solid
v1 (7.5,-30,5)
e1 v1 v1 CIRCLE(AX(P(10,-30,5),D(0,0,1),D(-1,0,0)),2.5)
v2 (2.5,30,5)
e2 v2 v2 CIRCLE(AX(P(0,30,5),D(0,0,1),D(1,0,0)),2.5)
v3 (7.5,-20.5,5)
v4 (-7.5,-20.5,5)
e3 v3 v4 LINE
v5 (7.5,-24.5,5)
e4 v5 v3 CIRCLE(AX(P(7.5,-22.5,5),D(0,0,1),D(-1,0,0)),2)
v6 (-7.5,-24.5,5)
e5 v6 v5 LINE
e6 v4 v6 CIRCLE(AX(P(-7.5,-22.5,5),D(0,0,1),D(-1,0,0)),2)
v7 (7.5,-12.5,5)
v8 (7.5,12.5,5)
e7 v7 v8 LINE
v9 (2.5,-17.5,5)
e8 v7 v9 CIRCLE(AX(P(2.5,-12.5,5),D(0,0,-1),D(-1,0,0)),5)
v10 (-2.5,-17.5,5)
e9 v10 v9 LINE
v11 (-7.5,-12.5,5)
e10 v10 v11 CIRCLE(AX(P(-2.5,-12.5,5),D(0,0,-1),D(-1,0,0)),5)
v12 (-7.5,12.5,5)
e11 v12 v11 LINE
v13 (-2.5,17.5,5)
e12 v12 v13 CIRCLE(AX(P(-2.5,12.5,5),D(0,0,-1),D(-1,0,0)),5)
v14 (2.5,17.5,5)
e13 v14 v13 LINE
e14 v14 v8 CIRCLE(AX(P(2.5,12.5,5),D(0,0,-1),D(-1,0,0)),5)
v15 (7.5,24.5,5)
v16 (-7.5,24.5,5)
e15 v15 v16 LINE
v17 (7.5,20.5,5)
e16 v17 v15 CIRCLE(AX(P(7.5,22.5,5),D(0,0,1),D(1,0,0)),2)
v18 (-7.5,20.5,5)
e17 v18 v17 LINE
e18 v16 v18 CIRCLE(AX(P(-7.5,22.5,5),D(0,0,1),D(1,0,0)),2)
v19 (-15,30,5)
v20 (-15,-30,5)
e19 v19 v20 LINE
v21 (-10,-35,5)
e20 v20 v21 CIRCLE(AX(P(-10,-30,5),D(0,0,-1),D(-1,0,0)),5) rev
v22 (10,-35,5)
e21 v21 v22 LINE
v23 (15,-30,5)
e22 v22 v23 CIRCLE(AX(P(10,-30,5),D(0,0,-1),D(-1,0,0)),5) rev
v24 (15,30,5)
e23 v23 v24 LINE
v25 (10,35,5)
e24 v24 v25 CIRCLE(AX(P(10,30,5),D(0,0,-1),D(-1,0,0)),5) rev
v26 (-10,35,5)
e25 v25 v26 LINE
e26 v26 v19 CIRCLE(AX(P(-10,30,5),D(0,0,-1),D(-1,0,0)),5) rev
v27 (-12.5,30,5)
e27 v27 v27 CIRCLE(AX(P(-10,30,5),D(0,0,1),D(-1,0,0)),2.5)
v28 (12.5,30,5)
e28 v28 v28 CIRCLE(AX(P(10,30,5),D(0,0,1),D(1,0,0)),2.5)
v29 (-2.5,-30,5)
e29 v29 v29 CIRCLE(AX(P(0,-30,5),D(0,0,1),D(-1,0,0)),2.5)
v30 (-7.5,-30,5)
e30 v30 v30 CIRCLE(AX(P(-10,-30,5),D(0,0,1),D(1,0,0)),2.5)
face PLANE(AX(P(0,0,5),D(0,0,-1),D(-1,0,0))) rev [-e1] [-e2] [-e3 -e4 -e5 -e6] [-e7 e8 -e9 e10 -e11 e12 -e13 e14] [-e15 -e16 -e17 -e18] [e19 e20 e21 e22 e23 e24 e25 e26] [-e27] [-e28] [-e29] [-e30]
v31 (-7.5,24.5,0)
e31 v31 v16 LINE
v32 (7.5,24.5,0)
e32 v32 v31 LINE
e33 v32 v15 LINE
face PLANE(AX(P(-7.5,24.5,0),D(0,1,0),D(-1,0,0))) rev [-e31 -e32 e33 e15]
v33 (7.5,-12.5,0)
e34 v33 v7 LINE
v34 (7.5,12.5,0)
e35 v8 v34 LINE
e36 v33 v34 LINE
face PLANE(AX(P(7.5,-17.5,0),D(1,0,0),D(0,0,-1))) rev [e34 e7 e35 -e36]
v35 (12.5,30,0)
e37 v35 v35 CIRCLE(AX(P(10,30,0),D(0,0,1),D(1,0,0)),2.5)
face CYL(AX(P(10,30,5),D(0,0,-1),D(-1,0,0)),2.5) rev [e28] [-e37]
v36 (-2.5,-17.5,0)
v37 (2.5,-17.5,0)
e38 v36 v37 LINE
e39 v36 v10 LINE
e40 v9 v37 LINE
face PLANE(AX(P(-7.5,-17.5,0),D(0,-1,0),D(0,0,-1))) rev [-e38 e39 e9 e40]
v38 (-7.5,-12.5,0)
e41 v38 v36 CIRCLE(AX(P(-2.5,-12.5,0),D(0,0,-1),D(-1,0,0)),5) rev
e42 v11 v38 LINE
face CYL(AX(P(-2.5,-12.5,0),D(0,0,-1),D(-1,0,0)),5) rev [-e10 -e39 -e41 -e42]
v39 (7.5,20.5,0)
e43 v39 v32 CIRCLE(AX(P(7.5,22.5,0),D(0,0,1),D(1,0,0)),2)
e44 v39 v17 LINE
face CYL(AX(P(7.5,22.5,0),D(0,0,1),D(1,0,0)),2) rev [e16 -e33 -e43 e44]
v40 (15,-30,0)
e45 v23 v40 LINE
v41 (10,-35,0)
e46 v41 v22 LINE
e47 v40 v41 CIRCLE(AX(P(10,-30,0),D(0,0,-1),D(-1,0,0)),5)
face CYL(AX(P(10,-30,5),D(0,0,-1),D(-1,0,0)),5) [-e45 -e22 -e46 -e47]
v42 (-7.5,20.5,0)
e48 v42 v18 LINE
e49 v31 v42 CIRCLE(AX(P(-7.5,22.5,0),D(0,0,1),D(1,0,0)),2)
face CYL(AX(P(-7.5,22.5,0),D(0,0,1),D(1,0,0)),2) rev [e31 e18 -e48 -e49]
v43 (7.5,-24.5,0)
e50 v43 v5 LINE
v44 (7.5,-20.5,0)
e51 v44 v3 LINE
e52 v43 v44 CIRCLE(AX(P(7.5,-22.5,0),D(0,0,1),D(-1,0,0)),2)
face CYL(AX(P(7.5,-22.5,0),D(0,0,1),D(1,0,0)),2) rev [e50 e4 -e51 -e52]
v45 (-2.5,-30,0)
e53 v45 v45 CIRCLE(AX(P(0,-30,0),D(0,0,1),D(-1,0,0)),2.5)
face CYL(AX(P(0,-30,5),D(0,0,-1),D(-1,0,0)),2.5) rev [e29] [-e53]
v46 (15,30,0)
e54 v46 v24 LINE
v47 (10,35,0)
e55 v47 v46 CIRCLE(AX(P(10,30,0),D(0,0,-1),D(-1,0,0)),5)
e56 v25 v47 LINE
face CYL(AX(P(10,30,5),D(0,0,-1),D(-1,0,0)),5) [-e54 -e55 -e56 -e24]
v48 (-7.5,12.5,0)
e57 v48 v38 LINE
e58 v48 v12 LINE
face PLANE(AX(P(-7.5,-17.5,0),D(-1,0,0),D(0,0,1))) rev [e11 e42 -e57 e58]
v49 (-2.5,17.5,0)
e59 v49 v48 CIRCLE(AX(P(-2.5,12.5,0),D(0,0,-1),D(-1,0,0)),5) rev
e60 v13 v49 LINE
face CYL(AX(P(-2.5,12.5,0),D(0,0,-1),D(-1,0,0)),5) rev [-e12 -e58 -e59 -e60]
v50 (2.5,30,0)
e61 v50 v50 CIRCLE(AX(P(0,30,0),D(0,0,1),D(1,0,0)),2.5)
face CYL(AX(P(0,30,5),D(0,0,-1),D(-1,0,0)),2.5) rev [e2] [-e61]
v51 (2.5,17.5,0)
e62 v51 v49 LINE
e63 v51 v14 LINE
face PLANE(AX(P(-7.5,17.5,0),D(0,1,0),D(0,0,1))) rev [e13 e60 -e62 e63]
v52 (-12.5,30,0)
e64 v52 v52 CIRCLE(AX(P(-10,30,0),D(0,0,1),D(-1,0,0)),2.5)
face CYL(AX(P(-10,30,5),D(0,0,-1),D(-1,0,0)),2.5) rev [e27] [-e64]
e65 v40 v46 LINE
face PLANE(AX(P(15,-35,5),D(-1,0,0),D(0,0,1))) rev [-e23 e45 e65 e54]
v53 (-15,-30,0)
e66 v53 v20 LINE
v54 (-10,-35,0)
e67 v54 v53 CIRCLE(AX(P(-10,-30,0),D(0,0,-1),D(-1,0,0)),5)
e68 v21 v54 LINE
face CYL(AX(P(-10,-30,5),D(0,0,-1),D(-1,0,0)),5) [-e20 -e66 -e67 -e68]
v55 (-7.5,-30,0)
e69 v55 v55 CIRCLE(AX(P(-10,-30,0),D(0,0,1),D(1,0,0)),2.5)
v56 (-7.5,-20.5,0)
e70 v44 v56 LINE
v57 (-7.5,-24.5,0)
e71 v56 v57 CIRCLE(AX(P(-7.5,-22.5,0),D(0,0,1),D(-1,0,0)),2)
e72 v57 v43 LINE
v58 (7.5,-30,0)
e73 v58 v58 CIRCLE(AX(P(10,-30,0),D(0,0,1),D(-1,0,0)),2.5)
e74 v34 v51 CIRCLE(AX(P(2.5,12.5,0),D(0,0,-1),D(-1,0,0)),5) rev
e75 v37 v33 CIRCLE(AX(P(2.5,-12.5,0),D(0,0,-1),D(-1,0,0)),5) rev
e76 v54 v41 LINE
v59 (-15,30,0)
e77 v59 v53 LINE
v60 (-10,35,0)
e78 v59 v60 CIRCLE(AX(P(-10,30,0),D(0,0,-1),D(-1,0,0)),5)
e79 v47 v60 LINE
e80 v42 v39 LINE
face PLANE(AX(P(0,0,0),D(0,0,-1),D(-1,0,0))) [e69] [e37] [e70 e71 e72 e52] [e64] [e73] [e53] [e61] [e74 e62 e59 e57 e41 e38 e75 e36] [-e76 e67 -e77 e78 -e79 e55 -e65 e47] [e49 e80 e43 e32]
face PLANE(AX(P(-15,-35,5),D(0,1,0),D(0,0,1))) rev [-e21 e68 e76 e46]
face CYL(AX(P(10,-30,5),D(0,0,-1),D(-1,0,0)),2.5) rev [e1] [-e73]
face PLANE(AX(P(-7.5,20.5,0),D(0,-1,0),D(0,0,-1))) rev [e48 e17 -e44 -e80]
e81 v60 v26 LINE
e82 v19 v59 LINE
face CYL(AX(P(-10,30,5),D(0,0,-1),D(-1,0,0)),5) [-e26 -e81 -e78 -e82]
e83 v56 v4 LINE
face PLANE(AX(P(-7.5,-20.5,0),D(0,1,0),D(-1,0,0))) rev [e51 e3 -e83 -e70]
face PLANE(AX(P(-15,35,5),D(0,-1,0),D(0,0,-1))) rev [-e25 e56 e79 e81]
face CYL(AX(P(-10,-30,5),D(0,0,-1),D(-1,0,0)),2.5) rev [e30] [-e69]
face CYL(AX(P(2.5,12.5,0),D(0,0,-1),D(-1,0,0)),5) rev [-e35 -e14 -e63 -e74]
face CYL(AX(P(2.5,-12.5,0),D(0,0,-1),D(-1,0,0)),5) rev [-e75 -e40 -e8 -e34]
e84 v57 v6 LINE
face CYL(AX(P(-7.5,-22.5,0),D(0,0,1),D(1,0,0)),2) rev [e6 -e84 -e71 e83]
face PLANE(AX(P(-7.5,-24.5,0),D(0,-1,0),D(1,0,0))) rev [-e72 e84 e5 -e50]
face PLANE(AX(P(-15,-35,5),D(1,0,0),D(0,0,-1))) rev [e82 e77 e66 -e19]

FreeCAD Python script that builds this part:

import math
import FreeCAD as App
import Part
import Sketcher

V = App.Vector
Q = App.Units.Quantity


def edges_at(feature, points):
    """Names of the edges that pass closest to the given points."""
    edges = feature.Shape.Edges
    near = lambda p: min(range(len(edges)), key=lambda i: edges[i].distToShape(Part.Vertex(*p))[0])
    return sorted({f"Edge{near(p) + 1}" for p in points})


def add_polygon(sketch, points):
    """Adds a closed chain of lines whose ends are joined by coincident constraints."""
    first, n = sketch.GeometryCount, len(points)
    for a, b in zip(points, points[1:] + points[:1]):
        sketch.addGeometry(Part.LineSegment(App.Vector(*a, 0), App.Vector(*b, 0)), False)
    for i in range(n):
        sketch.addConstraint(Sketcher.Constraint("Coincident", first + i, 2, first + (i + 1) % n, 1))

doc = App.newDocument("Part")
body = doc.addObject("PartDesign::Body", "Body")

# Sketch on XY plane
sketch1 = doc.addObject("Sketcher::SketchObject", "Sketch")
body.addObject(sketch1)
sketch1.AttachmentSupport = (doc.XY_Plane, [""])
sketch1.MapMode = "FlatFace"
add_polygon(sketch1, [(-15, 35), (-15, -35), (15, -35), (15, 35)])  # lines 0-3
sketch1.addGeometry(Part.Circle(V(-10, -30, 0), V(0, 0, 1), 2.5), False)  # 4
sketch1.addGeometry(Part.Circle(V(0, -30, 0), V(0, 0, 1), 2.5), False)  # 5
sketch1.addGeometry(Part.Circle(V(10, -30, 0), V(0, 0, 1), 2.5), False)  # 6
sketch1.addGeometry(Part.Circle(V(-10, 30, 0), V(0, 0, 1), 2.5), False)  # 7
sketch1.addGeometry(Part.Circle(V(0, 30, 0), V(0, 0, 1), 2.5), False)  # 8
sketch1.addGeometry(Part.Circle(V(10, 30, 0), V(0, 0, 1), 2.5), False)  # 9
sketch1.addConstraint([
    Sketcher.Constraint("Vertical", 0),
    Sketcher.Constraint("Horizontal", 1),
    Sketcher.Constraint("Vertical", 2),
    Sketcher.Constraint("Horizontal", 3),
    Sketcher.Constraint("Equal", 4, 5),
    Sketcher.Constraint("Equal", 5, 6),
    Sketcher.Constraint("Equal", 6, 7),
    Sketcher.Constraint("Equal", 7, 8),
    Sketcher.Constraint("Equal", 8, 9),
    Sketcher.Constraint("Symmetric", 6, 3, 7, 3, -1, 1),
    Sketcher.Constraint("Symmetric", 5, 3, 8, 3, -1, 1),
    Sketcher.Constraint("Symmetric", 4, 3, 9, 3, -1, 1),
    Sketcher.Constraint("Symmetric", 0, 2, 2, 2, -1, 1),
    Sketcher.Constraint("Symmetric", 4, 3, 6, 3, -2),
    Sketcher.Constraint("PointOnObject", 5, 3, -2),
    Sketcher.Constraint("Horizontal", 4, 3, 5, 3),
    Sketcher.Constraint("Diameter", 4, Q("5 mm")),
    Sketcher.Constraint("DistanceX", 1, 1, 1, 2, Q("30 mm")),
    Sketcher.Constraint("DistanceY", 0, 2, 0, 1, Q("70 mm")),
    Sketcher.Constraint("DistanceX", 4, 3, -1, 1, Q("10 mm")),
    Sketcher.Constraint("DistanceY", 4, 3, -1, 1, Q("30 mm")),
])
pad1 = doc.addObject("PartDesign::Pad", "Pad")
body.addObject(pad1)
pad1.Profile = sketch1
pad1.Length = 5
doc.recompute()

fillet = doc.addObject("PartDesign::Fillet", "Fillet")
body.addObject(fillet)
fillet.Base = (pad1, edges_at(pad1, [
    (15, -35, 2.5),
    (-15, -35, 2.5),
    (-15, 35, 2.5),
    (15, 35, 2.5),
]))
fillet.Radius = 5

# Sketch on XY plane
sketch2 = doc.addObject("Sketcher::SketchObject", "Sketch001")
body.addObject(sketch2)
sketch2.AttachmentSupport = (doc.XY_Plane, [""])
sketch2.MapMode = "FlatFace"
sketch2.AttachmentOffset = App.Placement(V(0, 0, 5), App.Rotation())
add_polygon(sketch2, [(-8, 18), (-8, -18), (8, -18), (8, 18)])  # lines 0-3
sketch2.addConstraint([
    Sketcher.Constraint("Vertical", 0),
    Sketcher.Constraint("Horizontal", 1),
    Sketcher.Constraint("Vertical", 2),
    Sketcher.Constraint("Horizontal", 3),
    Sketcher.Constraint("Symmetric", 0, 2, 2, 2, -1, 1),
    Sketcher.Constraint("DistanceX", 1, 1, 1, 2, Q("15 mm")),
    Sketcher.Constraint("DistanceY", 0, 2, 0, 1, Q("35 mm")),
])
pocket1 = doc.addObject("PartDesign::Pocket", "Pocket")
body.addObject(pocket1)
pocket1.Profile = sketch2
pocket1.Type = "ThroughAll"

# Sketch on XY plane
sketch3 = doc.addObject("Sketcher::SketchObject", "Sketch002")
body.addObject(sketch3)
sketch3.AttachmentSupport = (doc.XY_Plane, [""])
sketch3.MapMode = "FlatFace"
sketch3.AttachmentOffset = App.Placement(V(0, 0, 5), App.Rotation())
sketch3.addGeometry([
    Part.LineSegment(V(7.5, 24.5, 0), V(-7.5, 24.5, 0)),  # 0
    Part.ArcOfCircle(Part.Circle(V(-7.5, 22.5, 0), V(0, 0, 1), 2), math.radians(90), math.radians(270)),  # 1
    Part.LineSegment(V(-7.5, 20.5, 0), V(7.5, 20.5, 0)),  # 2
    Part.ArcOfCircle(Part.Circle(V(7.5, 22.5, 0), V(0, 0, 1), 2), math.radians(-90), math.radians(90)),  # 3
    Part.LineSegment(V(-7.5, -24.5, 0), V(7.5, -24.5, 0)),  # 4
    Part.ArcOfCircle(Part.Circle(V(7.5, -22.5, 0), V(0, 0, 1), 2), math.radians(-90), math.radians(90)),  # 5
    Part.LineSegment(V(7.5, -20.5, 0), V(-7.5, -20.5, 0)),  # 6
    Part.ArcOfCircle(Part.Circle(V(-7.5, -22.5, 0), V(0, 0, 1), 2), math.radians(90), math.radians(270)),  # 7
], False)
sketch3.addConstraint([
    Sketcher.Constraint("Tangent", 0, 2, 1, 1),
    Sketcher.Constraint("Tangent", 1, 2, 2, 1),
    Sketcher.Constraint("Tangent", 2, 2, 3, 1),
    Sketcher.Constraint("Tangent", 3, 2, 0, 1),
    Sketcher.Constraint("Tangent", 4, 2, 5, 1),
    Sketcher.Constraint("Tangent", 5, 2, 6, 1),
    Sketcher.Constraint("Tangent", 6, 2, 7, 1),
    Sketcher.Constraint("Tangent", 7, 2, 4, 1),
    Sketcher.Constraint("Horizontal", 0),
    Sketcher.Constraint("Horizontal", 2),
    Sketcher.Constraint("Horizontal", 4),
    Sketcher.Constraint("Horizontal", 6),
    Sketcher.Constraint("Equal", 3, 5),
    Sketcher.Constraint("Symmetric", 1, 3, 5, 3, -1, 1),
    Sketcher.Constraint("Vertical", 3, 3, 5, 3),
    Sketcher.Constraint("Vertical", 1, 3, 7, 3),
    Sketcher.Constraint("Radius", 1, Q("2 mm")),
    Sketcher.Constraint("DistanceX", 0, 2, 0, 1, Q("15 mm")),
    Sketcher.Constraint("DistanceY", 5, 3, 3, 3, Q("45 mm")),
])
pocket2 = doc.addObject("PartDesign::Pocket", "Pocket001")
body.addObject(pocket2)
pocket2.Profile = sketch3
pocket2.Type = "ThroughAll"
doc.recompute()

fillet2 = doc.addObject("PartDesign::Fillet", "Fillet001")
body.addObject(fillet2)
fillet2.Base = (pocket2, edges_at(pocket2, [
    (7.5, 17.5, 2.5),
    (7.5, -17.5, 2.5),
    (-7.5, -17.5, 2.5),
    (-7.5, 17.5, 2.5),
]))
fillet2.Radius = 5

doc.recompute()
